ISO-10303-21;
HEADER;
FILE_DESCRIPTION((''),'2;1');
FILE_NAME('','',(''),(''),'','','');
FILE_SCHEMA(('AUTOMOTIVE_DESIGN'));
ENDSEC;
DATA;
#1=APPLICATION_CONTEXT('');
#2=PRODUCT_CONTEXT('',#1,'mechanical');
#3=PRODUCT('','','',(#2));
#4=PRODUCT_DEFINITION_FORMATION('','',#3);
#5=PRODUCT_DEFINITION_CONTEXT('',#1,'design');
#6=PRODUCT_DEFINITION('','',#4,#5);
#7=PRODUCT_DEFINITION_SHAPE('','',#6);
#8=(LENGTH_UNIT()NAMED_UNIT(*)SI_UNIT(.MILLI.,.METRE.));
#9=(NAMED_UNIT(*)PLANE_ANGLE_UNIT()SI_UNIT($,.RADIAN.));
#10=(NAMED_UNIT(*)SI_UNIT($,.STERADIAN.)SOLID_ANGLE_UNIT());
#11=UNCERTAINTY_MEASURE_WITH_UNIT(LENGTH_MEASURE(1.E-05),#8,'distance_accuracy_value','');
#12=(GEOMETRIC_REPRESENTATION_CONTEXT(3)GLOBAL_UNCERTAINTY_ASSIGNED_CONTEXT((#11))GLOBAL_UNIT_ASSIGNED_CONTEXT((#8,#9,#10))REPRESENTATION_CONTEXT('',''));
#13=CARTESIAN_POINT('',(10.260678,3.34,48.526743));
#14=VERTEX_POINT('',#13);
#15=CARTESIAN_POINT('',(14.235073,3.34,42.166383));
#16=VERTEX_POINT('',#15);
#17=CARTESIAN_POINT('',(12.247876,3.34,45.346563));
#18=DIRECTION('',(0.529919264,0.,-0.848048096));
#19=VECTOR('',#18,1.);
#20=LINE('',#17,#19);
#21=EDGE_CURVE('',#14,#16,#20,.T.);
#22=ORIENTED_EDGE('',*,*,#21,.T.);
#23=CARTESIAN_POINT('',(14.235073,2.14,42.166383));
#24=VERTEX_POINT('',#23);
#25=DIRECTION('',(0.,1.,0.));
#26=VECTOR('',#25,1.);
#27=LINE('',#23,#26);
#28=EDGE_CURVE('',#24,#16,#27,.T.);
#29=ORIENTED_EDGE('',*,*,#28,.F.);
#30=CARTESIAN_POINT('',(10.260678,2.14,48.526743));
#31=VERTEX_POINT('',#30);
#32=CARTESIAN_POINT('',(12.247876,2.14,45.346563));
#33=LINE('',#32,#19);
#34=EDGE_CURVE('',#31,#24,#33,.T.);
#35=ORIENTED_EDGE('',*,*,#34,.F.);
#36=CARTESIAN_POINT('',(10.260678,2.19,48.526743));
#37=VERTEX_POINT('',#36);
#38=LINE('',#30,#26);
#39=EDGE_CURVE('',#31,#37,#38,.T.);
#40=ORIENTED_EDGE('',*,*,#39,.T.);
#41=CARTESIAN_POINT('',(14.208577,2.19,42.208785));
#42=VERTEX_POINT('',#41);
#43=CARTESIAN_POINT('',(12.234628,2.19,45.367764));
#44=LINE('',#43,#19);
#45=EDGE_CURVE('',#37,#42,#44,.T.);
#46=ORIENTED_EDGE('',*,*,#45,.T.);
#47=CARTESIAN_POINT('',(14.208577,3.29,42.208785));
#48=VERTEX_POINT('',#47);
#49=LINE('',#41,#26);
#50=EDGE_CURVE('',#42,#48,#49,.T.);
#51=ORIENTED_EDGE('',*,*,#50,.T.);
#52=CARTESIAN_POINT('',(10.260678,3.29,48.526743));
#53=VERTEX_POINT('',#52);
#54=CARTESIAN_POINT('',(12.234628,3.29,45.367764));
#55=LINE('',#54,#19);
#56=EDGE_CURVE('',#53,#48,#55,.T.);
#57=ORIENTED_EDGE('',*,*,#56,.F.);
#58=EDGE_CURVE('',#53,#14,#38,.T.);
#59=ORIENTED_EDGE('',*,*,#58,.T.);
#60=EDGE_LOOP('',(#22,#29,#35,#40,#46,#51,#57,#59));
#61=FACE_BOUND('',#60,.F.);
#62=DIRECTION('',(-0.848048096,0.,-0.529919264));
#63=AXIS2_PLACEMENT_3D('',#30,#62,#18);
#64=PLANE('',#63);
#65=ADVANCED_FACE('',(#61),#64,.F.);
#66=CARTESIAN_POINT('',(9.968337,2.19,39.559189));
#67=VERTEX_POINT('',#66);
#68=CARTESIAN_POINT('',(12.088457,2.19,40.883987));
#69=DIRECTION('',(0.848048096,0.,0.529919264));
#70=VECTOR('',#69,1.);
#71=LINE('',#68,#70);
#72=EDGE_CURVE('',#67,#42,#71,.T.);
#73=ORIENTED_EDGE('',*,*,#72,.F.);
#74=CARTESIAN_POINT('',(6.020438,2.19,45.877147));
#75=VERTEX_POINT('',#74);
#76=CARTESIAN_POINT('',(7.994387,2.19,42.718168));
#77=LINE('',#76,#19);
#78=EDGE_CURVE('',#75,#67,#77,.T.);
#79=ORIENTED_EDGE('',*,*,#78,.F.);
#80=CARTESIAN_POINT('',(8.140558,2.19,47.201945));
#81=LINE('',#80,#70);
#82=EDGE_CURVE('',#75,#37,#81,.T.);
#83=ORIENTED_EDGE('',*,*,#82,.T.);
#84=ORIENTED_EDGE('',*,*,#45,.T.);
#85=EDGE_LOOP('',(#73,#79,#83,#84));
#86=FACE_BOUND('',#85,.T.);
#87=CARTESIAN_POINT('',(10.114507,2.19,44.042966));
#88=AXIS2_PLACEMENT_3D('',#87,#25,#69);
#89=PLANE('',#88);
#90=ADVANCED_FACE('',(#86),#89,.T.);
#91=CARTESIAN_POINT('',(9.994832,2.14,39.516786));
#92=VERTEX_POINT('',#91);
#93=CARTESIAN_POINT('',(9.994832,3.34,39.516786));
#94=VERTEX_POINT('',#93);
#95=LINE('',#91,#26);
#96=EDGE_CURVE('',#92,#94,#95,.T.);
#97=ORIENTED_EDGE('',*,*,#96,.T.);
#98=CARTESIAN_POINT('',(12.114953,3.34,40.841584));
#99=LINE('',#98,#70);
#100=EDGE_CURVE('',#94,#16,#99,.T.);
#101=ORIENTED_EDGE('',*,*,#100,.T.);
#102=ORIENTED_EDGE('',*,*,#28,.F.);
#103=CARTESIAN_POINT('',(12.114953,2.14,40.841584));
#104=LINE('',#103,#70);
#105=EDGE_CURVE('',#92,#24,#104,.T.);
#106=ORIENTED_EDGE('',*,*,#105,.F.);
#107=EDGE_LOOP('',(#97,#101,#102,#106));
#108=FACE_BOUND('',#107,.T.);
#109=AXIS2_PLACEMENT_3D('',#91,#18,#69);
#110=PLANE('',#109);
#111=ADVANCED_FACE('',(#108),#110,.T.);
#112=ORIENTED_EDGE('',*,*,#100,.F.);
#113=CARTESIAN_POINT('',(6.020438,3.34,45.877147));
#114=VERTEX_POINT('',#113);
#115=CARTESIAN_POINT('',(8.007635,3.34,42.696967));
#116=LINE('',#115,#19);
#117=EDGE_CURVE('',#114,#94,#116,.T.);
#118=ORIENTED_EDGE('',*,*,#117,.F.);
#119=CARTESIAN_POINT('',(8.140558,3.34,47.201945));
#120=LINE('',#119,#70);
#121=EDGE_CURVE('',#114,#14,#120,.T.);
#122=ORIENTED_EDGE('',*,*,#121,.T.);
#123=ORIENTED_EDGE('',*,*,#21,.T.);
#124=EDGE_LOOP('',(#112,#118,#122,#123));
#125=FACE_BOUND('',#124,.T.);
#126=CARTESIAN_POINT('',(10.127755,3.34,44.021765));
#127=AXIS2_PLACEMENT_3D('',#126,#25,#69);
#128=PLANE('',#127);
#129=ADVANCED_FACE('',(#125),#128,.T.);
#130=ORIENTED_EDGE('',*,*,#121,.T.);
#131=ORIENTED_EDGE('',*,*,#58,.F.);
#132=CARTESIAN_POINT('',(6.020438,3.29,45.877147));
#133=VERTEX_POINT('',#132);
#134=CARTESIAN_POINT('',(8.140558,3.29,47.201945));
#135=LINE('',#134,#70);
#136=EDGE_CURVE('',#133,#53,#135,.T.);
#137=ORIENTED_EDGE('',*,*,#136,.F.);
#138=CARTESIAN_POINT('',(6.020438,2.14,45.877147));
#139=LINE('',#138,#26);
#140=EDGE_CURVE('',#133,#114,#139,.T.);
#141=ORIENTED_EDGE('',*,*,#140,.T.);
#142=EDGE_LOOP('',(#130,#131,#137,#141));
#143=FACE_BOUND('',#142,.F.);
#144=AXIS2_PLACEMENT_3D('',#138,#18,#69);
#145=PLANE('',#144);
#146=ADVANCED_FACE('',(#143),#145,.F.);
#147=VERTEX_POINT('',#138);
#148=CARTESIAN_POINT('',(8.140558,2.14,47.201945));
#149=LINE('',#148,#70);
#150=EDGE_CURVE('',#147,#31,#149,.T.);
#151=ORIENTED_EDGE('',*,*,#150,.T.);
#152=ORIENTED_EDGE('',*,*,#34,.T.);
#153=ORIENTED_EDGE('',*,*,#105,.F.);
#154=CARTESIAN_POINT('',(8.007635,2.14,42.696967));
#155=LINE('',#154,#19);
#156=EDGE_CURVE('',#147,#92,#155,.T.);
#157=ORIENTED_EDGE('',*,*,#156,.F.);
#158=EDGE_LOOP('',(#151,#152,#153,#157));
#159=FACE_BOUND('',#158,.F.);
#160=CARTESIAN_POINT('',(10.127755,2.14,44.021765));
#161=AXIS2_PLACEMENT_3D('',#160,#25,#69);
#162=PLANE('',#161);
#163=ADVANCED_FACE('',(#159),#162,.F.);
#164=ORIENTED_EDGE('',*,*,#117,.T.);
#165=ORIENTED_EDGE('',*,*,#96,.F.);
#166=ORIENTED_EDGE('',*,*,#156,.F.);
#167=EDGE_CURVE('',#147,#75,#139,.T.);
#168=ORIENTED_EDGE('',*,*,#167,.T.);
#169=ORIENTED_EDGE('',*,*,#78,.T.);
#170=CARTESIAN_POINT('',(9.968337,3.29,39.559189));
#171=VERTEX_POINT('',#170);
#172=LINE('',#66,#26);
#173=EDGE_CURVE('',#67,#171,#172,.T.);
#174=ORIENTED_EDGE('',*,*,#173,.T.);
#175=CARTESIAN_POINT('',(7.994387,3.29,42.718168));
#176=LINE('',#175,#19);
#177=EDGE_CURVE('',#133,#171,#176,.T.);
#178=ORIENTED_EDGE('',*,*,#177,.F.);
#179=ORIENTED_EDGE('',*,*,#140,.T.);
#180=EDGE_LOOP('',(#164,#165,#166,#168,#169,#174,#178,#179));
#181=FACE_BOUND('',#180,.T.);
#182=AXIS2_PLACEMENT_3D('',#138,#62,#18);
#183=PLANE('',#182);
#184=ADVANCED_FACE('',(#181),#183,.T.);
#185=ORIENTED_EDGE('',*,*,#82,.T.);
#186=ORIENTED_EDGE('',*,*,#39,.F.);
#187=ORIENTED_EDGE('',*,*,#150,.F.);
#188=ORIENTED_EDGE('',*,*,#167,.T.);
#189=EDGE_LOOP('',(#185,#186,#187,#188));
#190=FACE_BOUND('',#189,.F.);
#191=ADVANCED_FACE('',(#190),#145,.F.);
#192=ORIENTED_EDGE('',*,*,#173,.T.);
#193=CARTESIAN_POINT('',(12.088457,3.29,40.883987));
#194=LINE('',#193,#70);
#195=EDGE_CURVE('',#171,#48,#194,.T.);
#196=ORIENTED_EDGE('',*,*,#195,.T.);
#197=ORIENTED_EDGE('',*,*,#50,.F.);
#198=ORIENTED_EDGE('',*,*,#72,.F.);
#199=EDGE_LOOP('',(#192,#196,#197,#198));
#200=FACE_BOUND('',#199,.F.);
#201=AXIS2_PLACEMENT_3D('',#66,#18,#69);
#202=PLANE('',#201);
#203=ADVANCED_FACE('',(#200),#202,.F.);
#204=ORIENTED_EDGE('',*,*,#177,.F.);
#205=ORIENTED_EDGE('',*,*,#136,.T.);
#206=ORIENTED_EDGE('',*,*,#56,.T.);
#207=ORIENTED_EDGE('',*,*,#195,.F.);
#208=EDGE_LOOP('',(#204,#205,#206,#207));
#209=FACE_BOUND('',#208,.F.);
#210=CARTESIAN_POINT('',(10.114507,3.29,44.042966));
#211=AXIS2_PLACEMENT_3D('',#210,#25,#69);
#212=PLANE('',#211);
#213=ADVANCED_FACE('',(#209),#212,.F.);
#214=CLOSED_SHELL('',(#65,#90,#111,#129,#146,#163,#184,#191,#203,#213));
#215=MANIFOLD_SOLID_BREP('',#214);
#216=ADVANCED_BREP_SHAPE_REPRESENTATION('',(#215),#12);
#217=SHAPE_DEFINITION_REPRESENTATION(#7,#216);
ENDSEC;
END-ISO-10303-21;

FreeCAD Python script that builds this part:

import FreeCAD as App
import Part
import Sketcher

doc = App.newDocument("Part")
body = doc.addObject("PartDesign::Body", "Body")

# Sketch on XY plane
sketch1 = body.newObject("Sketcher::SketchObject", "Sketch")
sketch1.AttachmentSupport = (doc.getObject("XY_Plane"), [""])
sketch1.MapMode = "FlatFace"
sketch1.AttachmentOffset = App.Placement(App.Vector(0, 0, 0.05), App.Rotation())
sketch1.addGeometry(Part.LineSegment(App.Vector(0, 7, 0), App.Vector(0, 0, 0)), False)
sketch1.addGeometry(Part.LineSegment(App.Vector(0, 0, 0), App.Vector(5, 0, 0)), False)
sketch1.addGeometry(Part.LineSegment(App.Vector(5, 0, 0), App.Vector(5, 7, 0)), False)
sketch1.addGeometry(Part.LineSegment(App.Vector(5, 7, 0), App.Vector(0, 7, 0)), False)
sketch1.addConstraint(Sketcher.Constraint("Coincident", 0, 2, 1, 1))
sketch1.addConstraint(Sketcher.Constraint("Coincident", 1, 2, 2, 1))
sketch1.addConstraint(Sketcher.Constraint("Coincident", 2, 2, 3, 1))
sketch1.addConstraint(Sketcher.Constraint("Coincident", 3, 2, 0, 1))
sketch1.addConstraint(Sketcher.Constraint("Vertical", 0))
sketch1.addConstraint(Sketcher.Constraint("Horizontal", 1))
sketch1.addConstraint(Sketcher.Constraint("Vertical", 2))
sketch1.addConstraint(Sketcher.Constraint("Horizontal", 3))
sketch1.addConstraint(Sketcher.Constraint("Coincident", 0, 2, -1, 1))
sketch1.addConstraint(Sketcher.Constraint("DistanceX", 1, 1, 1, 2, 5.0))
sketch1.addConstraint(Sketcher.Constraint("DistanceY", 0, 2, 0, 1, 7.45))
pad1 = body.newObject("PartDesign::Pad", "Pad")
pad1.Profile = sketch1
pad1.Length = 1.1
body2 = doc.addObject("PartDesign::Body", "Body001")

# Sketch on XY plane
sketch2 = body2.newObject("Sketcher::SketchObject", "Sketch001")
sketch2.AttachmentSupport = (doc.getObject("XY_Plane001"), [""])
sketch2.MapMode = "FlatFace"
sketch2.addGeometry(Part.LineSegment(App.Vector(0, 8, 0), App.Vector(0, 0, 0)), False)
sketch2.addGeometry(Part.LineSegment(App.Vector(0, 0, 0), App.Vector(5, 0, 0)), False)
sketch2.addGeometry(Part.LineSegment(App.Vector(5, 0, 0), App.Vector(5, 8, 0)), False)
sketch2.addGeometry(Part.LineSegment(App.Vector(5, 8, 0), App.Vector(0, 8, 0)), False)
sketch2.addConstraint(Sketcher.Constraint("Coincident", 0, 2, 1, 1))
sketch2.addConstraint(Sketcher.Constraint("Coincident", 1, 2, 2, 1))
sketch2.addConstraint(Sketcher.Constraint("Coincident", 2, 2, 3, 1))
sketch2.addConstraint(Sketcher.Constraint("Coincident", 3, 2, 0, 1))
sketch2.addConstraint(Sketcher.Constraint("Vertical", 0))
sketch2.addConstraint(Sketcher.Constraint("Horizontal", 1))
sketch2.addConstraint(Sketcher.Constraint("Vertical", 2))
sketch2.addConstraint(Sketcher.Constraint("Horizontal", 3))
sketch2.addConstraint(Sketcher.Constraint("Coincident", 0, 2, -1, 1))
sketch2.addConstraint(Sketcher.Constraint("DistanceX", 1, 1, 1, 2, 5.0))
sketch2.addConstraint(Sketcher.Constraint("DistanceY", 0, 2, 0, 1, 7.5))
pad2 = body2.newObject("PartDesign::Pad", "Pad001")
pad2.Profile = sketch2
pad2.Length = 1.2
doc.recompute()

boolean = body2.newObject("PartDesign::Boolean", "Boolean")
boolean.Type = "Cut"
boolean.addObjects([body])
body3 = doc.addObject("PartDesign::Body", "Body002")
doc.recompute()

body2.Placement = App.Placement(App.Vector(0, 0, 0), App.Rotation(App.Vector(1, 0, 0), 270))
boolean2 = body3.newObject("PartDesign::Boolean", "Boolean001")
boolean2.Type = "Fuse"
boolean2.addObjects([body2])
body4 = doc.addObject("PartDesign::Body", "Body003")
doc.recompute()

body3.Placement = App.Placement(App.Vector(0, 0, 0), App.Rotation(App.Vector(0, 1, 0), 328))
boolean3 = body4.newObject("PartDesign::Boolean", "Boolean002")
boolean3.Type = "Fuse"
boolean3.addObjects([body3])
body5 = doc.addObject("PartDesign::Body", "Body004")
doc.recompute()

body4.Placement = App.Placement(App.Vector(6.020438, 2.14, 45.877147), App.Rotation(App.Vector(0, 0, 1), 0))
boolean4 = body5.newObject("PartDesign::Boolean", "Boolean003")
boolean4.Type = "Fuse"
boolean4.addObjects([body4])

doc.recompute()
